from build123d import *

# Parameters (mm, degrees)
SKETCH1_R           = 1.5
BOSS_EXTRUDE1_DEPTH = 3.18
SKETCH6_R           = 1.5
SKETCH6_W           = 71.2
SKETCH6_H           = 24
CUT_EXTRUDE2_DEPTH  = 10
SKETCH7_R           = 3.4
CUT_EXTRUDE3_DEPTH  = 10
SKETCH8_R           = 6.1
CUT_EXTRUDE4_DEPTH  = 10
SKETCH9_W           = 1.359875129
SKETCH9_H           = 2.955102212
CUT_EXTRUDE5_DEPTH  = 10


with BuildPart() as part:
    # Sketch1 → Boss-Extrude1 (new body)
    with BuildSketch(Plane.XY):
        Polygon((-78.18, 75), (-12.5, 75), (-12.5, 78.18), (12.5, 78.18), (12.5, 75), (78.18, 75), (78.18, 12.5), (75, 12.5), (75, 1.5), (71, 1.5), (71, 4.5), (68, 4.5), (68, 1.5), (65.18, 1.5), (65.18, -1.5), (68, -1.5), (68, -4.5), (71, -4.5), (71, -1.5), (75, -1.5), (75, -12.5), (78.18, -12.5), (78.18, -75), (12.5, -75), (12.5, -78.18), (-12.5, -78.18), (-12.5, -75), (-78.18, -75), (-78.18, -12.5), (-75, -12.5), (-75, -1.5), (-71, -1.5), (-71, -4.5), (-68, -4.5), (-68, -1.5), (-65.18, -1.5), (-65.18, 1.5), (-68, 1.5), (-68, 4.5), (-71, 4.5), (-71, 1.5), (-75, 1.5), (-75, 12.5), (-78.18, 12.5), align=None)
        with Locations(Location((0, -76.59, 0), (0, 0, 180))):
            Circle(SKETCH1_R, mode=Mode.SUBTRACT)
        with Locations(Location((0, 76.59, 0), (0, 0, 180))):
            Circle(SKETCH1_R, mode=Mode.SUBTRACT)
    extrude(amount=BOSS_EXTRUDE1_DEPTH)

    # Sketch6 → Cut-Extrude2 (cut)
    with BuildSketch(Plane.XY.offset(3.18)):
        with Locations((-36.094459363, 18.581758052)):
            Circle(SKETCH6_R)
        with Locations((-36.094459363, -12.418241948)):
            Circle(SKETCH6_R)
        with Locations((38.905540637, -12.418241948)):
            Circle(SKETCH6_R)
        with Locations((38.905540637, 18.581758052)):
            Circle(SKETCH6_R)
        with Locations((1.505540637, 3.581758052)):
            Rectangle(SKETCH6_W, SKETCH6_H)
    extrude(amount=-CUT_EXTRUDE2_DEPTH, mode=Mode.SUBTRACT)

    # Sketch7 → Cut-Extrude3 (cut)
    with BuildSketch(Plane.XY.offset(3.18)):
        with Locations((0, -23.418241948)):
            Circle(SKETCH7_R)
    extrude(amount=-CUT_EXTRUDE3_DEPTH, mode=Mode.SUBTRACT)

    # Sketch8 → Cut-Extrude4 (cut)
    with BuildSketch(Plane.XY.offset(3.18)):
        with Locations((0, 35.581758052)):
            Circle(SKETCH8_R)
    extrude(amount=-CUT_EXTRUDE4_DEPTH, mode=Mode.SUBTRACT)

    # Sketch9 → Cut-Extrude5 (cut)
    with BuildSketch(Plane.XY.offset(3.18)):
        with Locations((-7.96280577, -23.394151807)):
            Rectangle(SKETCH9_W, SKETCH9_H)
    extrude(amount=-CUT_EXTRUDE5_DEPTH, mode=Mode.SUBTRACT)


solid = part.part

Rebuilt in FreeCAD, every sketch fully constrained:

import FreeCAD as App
import Part
import Sketcher
from FreeCAD import Vector

doc = App.newDocument("Part")
params = doc.addObject("Spreadsheet::Sheet", "Params")
for row, (alias, value) in enumerate([
    ("sketch1_diameter", "3 mm"),
    ("sketch1_width", "4 mm"),
    ("sketch1_width2", "3 mm"),
    ("sketch1_width3", "25 mm"),
    ("sketch1_height", "11 mm"),
    ("pad1_length", "3.18 mm"),
    ("sketch2_diameter", "3 mm"),
    ("sketch2_height", "24 mm"),
    ("sketch2_width", "71.2 mm"),
    ("pocket1_length", "10 mm"),
    ("sketch3_diameter", "6.8 mm"),
    ("pocket2_length", "10 mm"),
    ("sketch4_diameter", "12.2 mm"),
    ("pocket3_length", "10 mm"),
    ("pocket4_length", "10 mm"),
], start=1):
    params.set(f"A{row}", alias)
    params.set(f"B{row}", "=" + value)
    params.setAlias(f"B{row}", alias)

body = doc.addObject("PartDesign::Body", "Body")

# Sketch on XY plane
sketch1 = body.newObject("Sketcher::SketchObject", "Sketch")
sketch1.AttachmentSupport = (doc.getObject("XY_Plane"), [""])
sketch1.MapMode = "FlatFace"
sketch1.addGeometry(Part.LineSegment(Vector(-12.5, 75, 0), Vector(-78.2, 75, 0)), False)
sketch1.addGeometry(Part.LineSegment(Vector(-78.2, 75, 0), Vector(-78.2, 12.5, 0)), False)
sketch1.addGeometry(Part.LineSegment(Vector(-78.2, 12.5, 0), Vector(-75, 12.5, 0)), False)
sketch1.addGeometry(Part.LineSegment(Vector(-75, 12.5, 0), Vector(-75, 1.5, 0)), False)
sketch1.addGeometry(Part.LineSegment(Vector(-75, 1.5, 0), Vector(-71, 1.5, 0)), False)
sketch1.addGeometry(Part.LineSegment(Vector(-71, 1.5, 0), Vector(-71, 4.5, 0)), False)
sketch1.addGeometry(Part.LineSegment(Vector(-71, 4.5, 0), Vector(-68, 4.5, 0)), False)
sketch1.addGeometry(Part.LineSegment(Vector(-68, 4.5, 0), Vector(-68, 1.5, 0)), False)
sketch1.addGeometry(Part.LineSegment(Vector(-68, 1.5, 0), Vector(-65.2, 1.5, 0)), False)
sketch1.addGeometry(Part.LineSegment(Vector(-65.2, 1.5, 0), Vector(-65.2, -1.5, 0)), False)
sketch1.addGeometry(Part.LineSegment(Vector(-65.2, -1.5, 0), Vector(-68, -1.5, 0)), False)
sketch1.addGeometry(Part.LineSegment(Vector(-68, -1.5, 0), Vector(-68, -4.5, 0)), False)
sketch1.addGeometry(Part.LineSegment(Vector(-68, -4.5, 0), Vector(-71, -4.5, 0)), False)
sketch1.addGeometry(Part.LineSegment(Vector(-71, -4.5, 0), Vector(-71, -1.5, 0)), False)
sketch1.addGeometry(Part.LineSegment(Vector(-71, -1.5, 0), Vector(-75, -1.5, 0)), False)
sketch1.addGeometry(Part.LineSegment(Vector(-75, -1.5, 0), Vector(-75, -12.5, 0)), False)
sketch1.addGeometry(Part.LineSegment(Vector(-75, -12.5, 0), Vector(-78.2, -12.5, 0)), False)
sketch1.addGeometry(Part.LineSegment(Vector(-78.2, -12.5, 0), Vector(-78.2, -75, 0)), False)
sketch1.addGeometry(Part.LineSegment(Vector(-78.2, -75, 0), Vector(-12.5, -75, 0)), False)
sketch1.addGeometry(Part.LineSegment(Vector(-12.5, -75, 0), Vector(-12.5, -78.2, 0)), False)
sketch1.addGeometry(Part.LineSegment(Vector(-12.5, -78.2, 0), Vector(12.5, -78.2, 0)), False)
sketch1.addGeometry(Part.LineSegment(Vector(12.5, -78.2, 0), Vector(12.5, -75, 0)), False)
sketch1.addGeometry(Part.LineSegment(Vector(12.5, -75, 0), Vector(78.2, -75, 0)), False)
sketch1.addGeometry(Part.LineSegment(Vector(78.2, -75, 0), Vector(78.2, -12.5, 0)), False)
sketch1.addGeometry(Part.LineSegment(Vector(78.2, -12.5, 0), Vector(75, -12.5, 0)), False)
sketch1.addGeometry(Part.LineSegment(Vector(75, -12.5, 0), Vector(75, -1.5, 0)), False)
sketch1.addGeometry(Part.LineSegment(Vector(75, -1.5, 0), Vector(71, -1.5, 0)), False)
sketch1.addGeometry(Part.LineSegment(Vector(71, -1.5, 0), Vector(71, -4.5, 0)), False)
sketch1.addGeometry(Part.LineSegment(Vector(71, -4.5, 0), Vector(68, -4.5, 0)), False)
sketch1.addGeometry(Part.LineSegment(Vector(68, -4.5, 0), Vector(68, -1.5, 0)), False)
sketch1.addGeometry(Part.LineSegment(Vector(68, -1.5, 0), Vector(65.2, -1.5, 0)), False)
sketch1.addGeometry(Part.LineSegment(Vector(65.2, -1.5, 0), Vector(65.2, 1.5, 0)), False)
sketch1.addGeometry(Part.LineSegment(Vector(65.2, 1.5, 0), Vector(68, 1.5, 0)), False)
sketch1.addGeometry(Part.LineSegment(Vector(68, 1.5, 0), Vector(68, 4.5, 0)), False)
sketch1.addGeometry(Part.LineSegment(Vector(68, 4.5, 0), Vector(71, 4.5, 0)), False)
sketch1.addGeometry(Part.LineSegment(Vector(71, 4.5, 0), Vector(71, 1.5, 0)), False)
sketch1.addGeometry(Part.LineSegment(Vector(71, 1.5, 0), Vector(75, 1.5, 0)), False)
sketch1.addGeometry(Part.LineSegment(Vector(75, 1.5, 0), Vector(75, 12.5, 0)), False)
sketch1.addGeometry(Part.LineSegment(Vector(75, 12.5, 0), Vector(78.2, 12.5, 0)), False)
sketch1.addGeometry(Part.LineSegment(Vector(78.2, 12.5, 0), Vector(78.2, 75, 0)), False)
sketch1.addGeometry(Part.LineSegment(Vector(78.2, 75, 0), Vector(12.5, 75, 0)), False)
sketch1.addGeometry(Part.LineSegment(Vector(12.5, 75, 0), Vector(12.5, 78.2, 0)), False)
sketch1.addGeometry(Part.LineSegment(Vector(12.5, 78.2, 0), Vector(-12.5, 78.2, 0)), False)
sketch1.addGeometry(Part.LineSegment(Vector(-12.5, 78.2, 0), Vector(-12.5, 75, 0)), False)
sketch1.addGeometry(Part.Circle(Vector(0, -76.6, 0), Vector(0, 0, 1), 1.5), False)
sketch1.addGeometry(Part.Circle(Vector(0, 76.6, 0), Vector(0, 0, 1), 1.5), False)
sketch1.addConstraint(Sketcher.Constraint("Coincident", 0, 2, 1, 1))
sketch1.addConstraint(Sketcher.Constraint("Coincident", 1, 2, 2, 1))
sketch1.addConstraint(Sketcher.Constraint("Coincident", 2, 2, 3, 1))
sketch1.addConstraint(Sketcher.Constraint("Coincident", 3, 2, 4, 1))
sketch1.addConstraint(Sketcher.Constraint("Coincident", 4, 2, 5, 1))
sketch1.addConstraint(Sketcher.Constraint("Coincident", 5, 2, 6, 1))
sketch1.addConstraint(Sketcher.Constraint("Coincident", 6, 2, 7, 1))
sketch1.addConstraint(Sketcher.Constraint("Coincident", 7, 2, 8, 1))
sketch1.addConstraint(Sketcher.Constraint("Coincident", 8, 2, 9, 1))
sketch1.addConstraint(Sketcher.Constraint("Coincident", 9, 2, 10, 1))
sketch1.addConstraint(Sketcher.Constraint("Coincident", 10, 2, 11, 1))
sketch1.addConstraint(Sketcher.Constraint("Coincident", 11, 2, 12, 1))
sketch1.addConstraint(Sketcher.Constraint("Coincident", 12, 2, 13, 1))
sketch1.addConstraint(Sketcher.Constraint("Coincident", 13, 2, 14, 1))
sketch1.addConstraint(Sketcher.Constraint("Coincident", 14, 2, 15, 1))
sketch1.addConstraint(Sketcher.Constraint("Coincident", 15, 2, 16, 1))
sketch1.addConstraint(Sketcher.Constraint("Coincident", 16, 2, 17, 1))
sketch1.addConstraint(Sketcher.Constraint("Coincident", 17, 2, 18, 1))
sketch1.addConstraint(Sketcher.Constraint("Coincident", 18, 2, 19, 1))
sketch1.addConstraint(Sketcher.Constraint("Coincident", 19, 2, 20, 1))
sketch1.addConstraint(Sketcher.Constraint("Coincident", 20, 2, 21, 1))
sketch1.addConstraint(Sketcher.Constraint("Coincident", 21, 2, 22, 1))
sketch1.addConstraint(Sketcher.Constraint("Coincident", 22, 2, 23, 1))
sketch1.addConstraint(Sketcher.Constraint("Coincident", 23, 2, 24, 1))
sketch1.addConstraint(Sketcher.Constraint("Coincident", 24, 2, 25, 1))
sketch1.addConstraint(Sketcher.Constraint("Coincident", 25, 2, 26, 1))
sketch1.addConstraint(Sketcher.Constraint("Coincident", 26, 2, 27, 1))
sketch1.addConstraint(Sketcher.Constraint("Coincident", 27, 2, 28, 1))
sketch1.addConstraint(Sketcher.Constraint("Coincident", 28, 2, 29, 1))
sketch1.addConstraint(Sketcher.Constraint("Coincident", 29, 2, 30, 1))
sketch1.addConstraint(Sketcher.Constraint("Coincident", 30, 2, 31, 1))
sketch1.addConstraint(Sketcher.Constraint("Coincident", 31, 2, 32, 1))
sketch1.addConstraint(Sketcher.Constraint("Coincident", 32, 2, 33, 1))
sketch1.addConstraint(Sketcher.Constraint("Coincident", 33, 2, 34, 1))
sketch1.addConstraint(Sketcher.Constraint("Coincident", 34, 2, 35, 1))
sketch1.addConstraint(Sketcher.Constraint("Coincident", 35, 2, 36, 1))
sketch1.addConstraint(Sketcher.Constraint("Coincident", 36, 2, 37, 1))
sketch1.addConstraint(Sketcher.Constraint("Coincident", 37, 2, 38, 1))
sketch1.addConstraint(Sketcher.Constraint("Coincident", 38, 2, 39, 1))
sketch1.addConstraint(Sketcher.Constraint("Coincident", 39, 2, 40, 1))
sketch1.addConstraint(Sketcher.Constraint("Coincident", 40, 2, 41, 1))
sketch1.addConstraint(Sketcher.Constraint("Coincident", 41, 2, 42, 1))
sketch1.addConstraint(Sketcher.Constraint("Coincident", 42, 2, 43, 1))
sketch1.addConstraint(Sketcher.Constraint("Coincident", 43, 2, 0, 1))
sketch1.addConstraint(Sketcher.Constraint("Horizontal", 0))
sketch1.addConstraint(Sketcher.Constraint("Vertical", 1))
sketch1.addConstraint(Sketcher.Constraint("Horizontal", 2))
sketch1.addConstraint(Sketcher.Constraint("Vertical", 3))
sketch1.addConstraint(Sketcher.Constraint("Horizontal", 4))
sketch1.addConstraint(Sketcher.Constraint("Vertical", 5))
sketch1.addConstraint(Sketcher.Constraint("Horizontal", 6))
sketch1.addConstraint(Sketcher.Constraint("Vertical", 7))
sketch1.addConstraint(Sketcher.Constraint("Horizontal", 8))
sketch1.addConstraint(Sketcher.Constraint("Vertical", 9))
sketch1.addConstraint(Sketcher.Constraint("Horizontal", 10))
sketch1.addConstraint(Sketcher.Constraint("Vertical", 11))
sketch1.addConstraint(Sketcher.Constraint("Horizontal", 12))
sketch1.addConstraint(Sketcher.Constraint("Vertical", 13))
sketch1.addConstraint(Sketcher.Constraint("Horizontal", 14))
sketch1.addConstraint(Sketcher.Constraint("Vertical", 15))
sketch1.addConstraint(Sketcher.Constraint("Horizontal", 16))
sketch1.addConstraint(Sketcher.Constraint("Vertical", 17))
sketch1.addConstraint(Sketcher.Constraint("Horizontal", 18))
sketch1.addConstraint(Sketcher.Constraint("Vertical", 19))
sketch1.addConstraint(Sketcher.Constraint("Horizontal", 20))
sketch1.addConstraint(Sketcher.Constraint("Vertical", 21))
sketch1.addConstraint(Sketcher.Constraint("Horizontal", 22))
sketch1.addConstraint(Sketcher.Constraint("Vertical", 23))
sketch1.addConstraint(Sketcher.Constraint("Horizontal", 24))
sketch1.addConstraint(Sketcher.Constraint("Vertical", 25))
sketch1.addConstraint(Sketcher.Constraint("Horizontal", 26))
sketch1.addConstraint(Sketcher.Constraint("Vertical", 27))
sketch1.addConstraint(Sketcher.Constraint("Horizontal", 28))
sketch1.addConstraint(Sketcher.Constraint("Vertical", 29))
sketch1.addConstraint(Sketcher.Constraint("Horizontal", 30))
sketch1.addConstraint(Sketcher.Constraint("Vertical", 31))
sketch1.addConstraint(Sketcher.Constraint("Horizontal", 32))
sketch1.addConstraint(Sketcher.Constraint("Vertical", 33))
sketch1.addConstraint(Sketcher.Constraint("Horizontal", 34))
sketch1.addConstraint(Sketcher.Constraint("Vertical", 35))
sketch1.addConstraint(Sketcher.Constraint("Horizontal", 36))
sketch1.addConstraint(Sketcher.Constraint("Vertical", 37))
sketch1.addConstraint(Sketcher.Constraint("Horizontal", 38))
sketch1.addConstraint(Sketcher.Constraint("Vertical", 39))
sketch1.addConstraint(Sketcher.Constraint("Horizontal", 40))
sketch1.addConstraint(Sketcher.Constraint("Vertical", 41))
sketch1.addConstraint(Sketcher.Constraint("Horizontal", 42))
sketch1.addConstraint(Sketcher.Constraint("Vertical", 43))
sketch1.addConstraint(Sketcher.Constraint("Equal", 44, 45))
sketch1.addConstraint(Sketcher.Constraint("Symmetric", 44, 3, 45, 3, -1, 1))
sketch1.addConstraint(Sketcher.Constraint("Symmetric", 0, 2, 22, 2, -1, 1))
sketch1.addConstraint(Sketcher.Constraint("Symmetric", 2, 2, 24, 2, -1, 1))
sketch1.addConstraint(Sketcher.Constraint("Symmetric", 4, 2, 26, 2, -1, 1))
sketch1.addConstraint(Sketcher.Constraint("Symmetric", 6, 2, 28, 2, -1, 1))
sketch1.addConstraint(Sketcher.Constraint("Symmetric", 8, 2, 30, 2, -1, 1))
sketch1.addConstraint(Sketcher.Constraint("Symmetric", 10, 2, 32, 2, -1, 1))
sketch1.addConstraint(Sketcher.Constraint("Symmetric", 12, 2, 34, 2, -1, 1))
sketch1.addConstraint(Sketcher.Constraint("Symmetric", 14, 2, 36, 2, -1, 1))
sketch1.addConstraint(Sketcher.Constraint("Symmetric", 16, 2, 38, 2, -1, 1))
sketch1.addConstraint(Sketcher.Constraint("Symmetric", 18, 2, 40, 2, -1, 1))
sketch1.addConstraint(Sketcher.Constraint("Symmetric", 20, 2, 42, 2, -1, 1))
sketch1.addConstraint(Sketcher.Constraint("Symmetric", 18, 2, 21, 2, -2))
sketch1.addConstraint(Sketcher.Constraint("Symmetric", 16, 2, 23, 2, -2))
sketch1.addConstraint(Sketcher.Constraint("Symmetric", 14, 2, 25, 2, -2))
sketch1.addConstraint(Sketcher.Constraint("Symmetric", 12, 2, 27, 2, -2))
sketch1.addConstraint(Sketcher.Constraint("Symmetric", 10, 2, 29, 2, -2))
sketch1.addConstraint(Sketcher.Constraint("PointOnObject", 44, 3, -2))
sketch1.addConstraint(Sketcher.Constraint("Horizontal", 4, 2, 7, 2))
sketch1.addConstraint(Sketcher.Constraint("Equal", 34, 5))
sketch1.addConstraint(Sketcher.Constraint("Equal", 7, 9))
sketch1.addConstraint(Sketcher.Constraint("Equal", 38, 19))
sketch1.addConstraint(Sketcher.Constraint("Diameter", 44, 3.0))
sketch1.addConstraint(Sketcher.Constraint("DistanceX", 4, 1, 4, 2, 4.0))
sketch1.addConstraint(Sketcher.Constraint("DistanceX", 6, 1, 6, 2, 3.0))
sketch1.addConstraint(Sketcher.Constraint("DistanceX", 20, 1, 20, 2, 25.0))
sketch1.addConstraint(Sketcher.Constraint("DistanceY", 3, 2, 3, 1, 11.0))
sketch1.addConstraint(Sketcher.Constraint("DistanceY", 1, 2, 1, 1, 62.5))
sketch1.addConstraint(Sketcher.Constraint("DistanceX", 2, 2, -1, 1, 75.0))
sketch1.addConstraint(Sketcher.Constraint("DistanceX", 0, 2, 0, 1, 65.68))
sketch1.addConstraint(Sketcher.Constraint("DistanceX", 8, 1, 8, 2, 2.82))
sketch1.addConstraint(Sketcher.Constraint("DistanceY", 44, 3, -1, 1, 76.59))
sketch1.setExpression("Constraints[111]", "Params.sketch1_diameter")
sketch1.setExpression("Constraints[112]", "Params.sketch1_width")
sketch1.setExpression("Constraints[113]", "Params.sketch1_width2")
sketch1.setExpression("Constraints[114]", "Params.sketch1_width3")
sketch1.setExpression("Constraints[115]", "Params.sketch1_height")
pad1 = body.newObject("PartDesign::Pad", "Pad")
pad1.Profile = sketch1
pad1.setExpression("Length", "Params.pad1_length")

# Sketch on XY plane
sketch2 = body.newObject("Sketcher::SketchObject", "Sketch001")
sketch2.AttachmentSupport = (doc.getObject("XY_Plane"), [""])
sketch2.MapMode = "FlatFace"
sketch2.AttachmentOffset = App.Placement(Vector(0, 0, 3.18), App.Rotation())
sketch2.addGeometry(Part.Circle(Vector(-36.1, 18.6, 0), Vector(0, 0, 1), 1.5), False)
sketch2.addGeometry(Part.Circle(Vector(-36.1, -12.4, 0), Vector(0, 0, 1), 1.5), False)
sketch2.addGeometry(Part.Circle(Vector(38.9, -12.4, 0), Vector(0, 0, 1), 1.5), False)
sketch2.addGeometry(Part.Circle(Vector(38.9, 18.6, 0), Vector(0, 0, 1), 1.5), False)
sketch2.addGeometry(Part.LineSegment(Vector(-34.1, 15.6, 0), Vector(-34.1, -8.4, 0)), False)
sketch2.addGeometry(Part.LineSegment(Vector(-34.1, -8.4, 0), Vector(37.1, -8.4, 0)), False)
sketch2.addGeometry(Part.LineSegment(Vector(37.1, -8.4, 0), Vector(37.1, 15.6, 0)), False)
sketch2.addGeometry(Part.LineSegment(Vector(37.1, 15.6, 0), Vector(-34.1, 15.6, 0)), False)
sketch2.addConstraint(Sketcher.Constraint("Coincident", 4, 2, 5, 1))
sketch2.addConstraint(Sketcher.Constraint("Coincident", 5, 2, 6, 1))
sketch2.addConstraint(Sketcher.Constraint("Coincident", 6, 2, 7, 1))
sketch2.addConstraint(Sketcher.Constraint("Coincident", 7, 2, 4, 1))
sketch2.addConstraint(Sketcher.Constraint("Vertical", 4))
sketch2.addConstraint(Sketcher.Constraint("Horizontal", 5))
sketch2.addConstraint(Sketcher.Constraint("Vertical", 6))
sketch2.addConstraint(Sketcher.Constraint("Horizontal", 7))
sketch2.addConstraint(Sketcher.Constraint("Equal", 0, 1))
sketch2.addConstraint(Sketcher.Constraint("Equal", 1, 2))
sketch2.addConstraint(Sketcher.Constraint("Equal", 2, 3))
sketch2.addConstraint(Sketcher.Constraint("Horizontal", 1, 3, 2, 3))
sketch2.addConstraint(Sketcher.Constraint("Horizontal", 0, 3, 3, 3))
sketch2.addConstraint(Sketcher.Constraint("Vertical", 0, 3, 1, 3))
sketch2.addConstraint(Sketcher.Constraint("Vertical", 2, 3, 3, 3))
sketch2.addConstraint(Sketcher.Constraint("Diameter", 0, 3.0))
sketch2.addConstraint(Sketcher.Constraint("DistanceY", 4, 2, 4, 1, 24.0))
sketch2.addConstraint(Sketcher.Constraint("DistanceX", 5, 1, 5, 2, 71.2))
sketch2.addConstraint(Sketcher.Constraint("DistanceY", 1, 3, 0, 3, 31.0))
sketch2.addConstraint(Sketcher.Constraint("DistanceX", 1, 3, 2, 3, 75.0))
sketch2.addConstraint(Sketcher.Constraint("DistanceX", 1, 3, 4, 2, 2.0))
sketch2.addConstraint(Sketcher.Constraint("DistanceY", 1, 3, 4, 2, 4.0))
sketch2.addConstraint(Sketcher.Constraint("DistanceX", 0, 3, -1, 1, 36.094459))
sketch2.addConstraint(Sketcher.Constraint("DistanceY", -1, 1, 0, 3, 18.581758))
sketch2.setExpression("Constraints[15]", "Params.sketch2_diameter")
sketch2.setExpression("Constraints[16]", "Params.sketch2_height")
sketch2.setExpression("Constraints[17]", "Params.sketch2_width")
pocket1 = body.newObject("PartDesign::Pocket", "Pocket")
pocket1.Profile = sketch2
pocket1.setExpression("Length", "Params.pocket1_length")

# Sketch on XY plane
sketch3 = body.newObject("Sketcher::SketchObject", "Sketch002")
sketch3.AttachmentSupport = (doc.getObject("XY_Plane"), [""])
sketch3.MapMode = "FlatFace"
sketch3.AttachmentOffset = App.Placement(Vector(0, 0, 3.18), App.Rotation())
sketch3.addGeometry(Part.Circle(Vector(0, -23.4, 0), Vector(0, 0, 1), 3.4), False)
sketch3.addConstraint(Sketcher.Constraint("PointOnObject", 0, 3, -2))
sketch3.addConstraint(Sketcher.Constraint("Diameter", 0, 6.8))
sketch3.addConstraint(Sketcher.Constraint("DistanceY", 0, 3, -1, 1, 23.418242))
sketch3.setExpression("Constraints[1]", "Params.sketch3_diameter")
pocket2 = body.newObject("PartDesign::Pocket", "Pocket001")
pocket2.Profile = sketch3
pocket2.setExpression("Length", "Params.pocket2_length")

# Sketch on XY plane
sketch4 = body.newObject("Sketcher::SketchObject", "Sketch003")
sketch4.AttachmentSupport = (doc.getObject("XY_Plane"), [""])
sketch4.MapMode = "FlatFace"
sketch4.AttachmentOffset = App.Placement(Vector(0, 0, 3.18), App.Rotation())
sketch4.addGeometry(Part.Circle(Vector(0, 36, 0), Vector(0, 0, 1), 6), False)
sketch4.addConstraint(Sketcher.Constraint("PointOnObject", 0, 3, -2))
sketch4.addConstraint(Sketcher.Constraint("Diameter", 0, 12.2))
sketch4.addConstraint(Sketcher.Constraint("DistanceY", -1, 1, 0, 3, 35.581758))
sketch4.setExpression("Constraints[1]", "Params.sketch4_diameter")
pocket3 = body.newObject("PartDesign::Pocket", "Pocket002")
pocket3.Profile = sketch4
pocket3.setExpression("Length", "Params.pocket3_length")

# Sketch on XY plane
sketch5 = body.newObject("Sketcher::SketchObject", "Sketch004")
sketch5.AttachmentSupport = (doc.getObject("XY_Plane"), [""])
sketch5.MapMode = "FlatFace"
sketch5.AttachmentOffset = App.Placement(Vector(0, 0, 3.18), App.Rotation())
sketch5.addGeometry(Part.LineSegment(Vector(-8.6, -21.9, 0), Vector(-8.6, -24.9, 0)), False)
sketch5.addGeometry(Part.LineSegment(Vector(-8.6, -24.9, 0), Vector(-7.3, -24.9, 0)), False)
sketch5.addGeometry(Part.LineSegment(Vector(-7.3, -24.9, 0), Vector(-7.3, -21.9, 0)), False)
sketch5.addGeometry(Part.LineSegment(Vector(-7.3, -21.9, 0), Vector(-8.6, -21.9, 0)), False)
sketch5.addConstraint(Sketcher.Constraint("Coincident", 0, 2, 1, 1))
sketch5.addConstraint(Sketcher.Constraint("Coincident", 1, 2, 2, 1))
sketch5.addConstraint(Sketcher.Constraint("Coincident", 2, 2, 3, 1))
sketch5.addConstraint(Sketcher.Constraint("Coincident", 3, 2, 0, 1))
sketch5.addConstraint(Sketcher.Constraint("Vertical", 0))
sketch5.addConstraint(Sketcher.Constraint("Horizontal", 1))
sketch5.addConstraint(Sketcher.Constraint("Vertical", 2))
sketch5.addConstraint(Sketcher.Constraint("Horizontal", 3))
sketch5.addConstraint(Sketcher.Constraint("DistanceY", 2, 2, -1, 1, 21.916601))
sketch5.addConstraint(Sketcher.Constraint("DistanceX", 1, 1, 1, 2, 1.359875))
sketch5.addConstraint(Sketcher.Constraint("DistanceY", 0, 2, 0, 1, 2.955102))
sketch5.addConstraint(Sketcher.Constraint("DistanceX", 1, 2, -1, 1, 7.282868))
pocket4 = body.newObject("PartDesign::Pocket", "Pocket003")
pocket4.Profile = sketch5
pocket4.setExpression("Length", "Params.pocket4_length")

doc.recompute()
